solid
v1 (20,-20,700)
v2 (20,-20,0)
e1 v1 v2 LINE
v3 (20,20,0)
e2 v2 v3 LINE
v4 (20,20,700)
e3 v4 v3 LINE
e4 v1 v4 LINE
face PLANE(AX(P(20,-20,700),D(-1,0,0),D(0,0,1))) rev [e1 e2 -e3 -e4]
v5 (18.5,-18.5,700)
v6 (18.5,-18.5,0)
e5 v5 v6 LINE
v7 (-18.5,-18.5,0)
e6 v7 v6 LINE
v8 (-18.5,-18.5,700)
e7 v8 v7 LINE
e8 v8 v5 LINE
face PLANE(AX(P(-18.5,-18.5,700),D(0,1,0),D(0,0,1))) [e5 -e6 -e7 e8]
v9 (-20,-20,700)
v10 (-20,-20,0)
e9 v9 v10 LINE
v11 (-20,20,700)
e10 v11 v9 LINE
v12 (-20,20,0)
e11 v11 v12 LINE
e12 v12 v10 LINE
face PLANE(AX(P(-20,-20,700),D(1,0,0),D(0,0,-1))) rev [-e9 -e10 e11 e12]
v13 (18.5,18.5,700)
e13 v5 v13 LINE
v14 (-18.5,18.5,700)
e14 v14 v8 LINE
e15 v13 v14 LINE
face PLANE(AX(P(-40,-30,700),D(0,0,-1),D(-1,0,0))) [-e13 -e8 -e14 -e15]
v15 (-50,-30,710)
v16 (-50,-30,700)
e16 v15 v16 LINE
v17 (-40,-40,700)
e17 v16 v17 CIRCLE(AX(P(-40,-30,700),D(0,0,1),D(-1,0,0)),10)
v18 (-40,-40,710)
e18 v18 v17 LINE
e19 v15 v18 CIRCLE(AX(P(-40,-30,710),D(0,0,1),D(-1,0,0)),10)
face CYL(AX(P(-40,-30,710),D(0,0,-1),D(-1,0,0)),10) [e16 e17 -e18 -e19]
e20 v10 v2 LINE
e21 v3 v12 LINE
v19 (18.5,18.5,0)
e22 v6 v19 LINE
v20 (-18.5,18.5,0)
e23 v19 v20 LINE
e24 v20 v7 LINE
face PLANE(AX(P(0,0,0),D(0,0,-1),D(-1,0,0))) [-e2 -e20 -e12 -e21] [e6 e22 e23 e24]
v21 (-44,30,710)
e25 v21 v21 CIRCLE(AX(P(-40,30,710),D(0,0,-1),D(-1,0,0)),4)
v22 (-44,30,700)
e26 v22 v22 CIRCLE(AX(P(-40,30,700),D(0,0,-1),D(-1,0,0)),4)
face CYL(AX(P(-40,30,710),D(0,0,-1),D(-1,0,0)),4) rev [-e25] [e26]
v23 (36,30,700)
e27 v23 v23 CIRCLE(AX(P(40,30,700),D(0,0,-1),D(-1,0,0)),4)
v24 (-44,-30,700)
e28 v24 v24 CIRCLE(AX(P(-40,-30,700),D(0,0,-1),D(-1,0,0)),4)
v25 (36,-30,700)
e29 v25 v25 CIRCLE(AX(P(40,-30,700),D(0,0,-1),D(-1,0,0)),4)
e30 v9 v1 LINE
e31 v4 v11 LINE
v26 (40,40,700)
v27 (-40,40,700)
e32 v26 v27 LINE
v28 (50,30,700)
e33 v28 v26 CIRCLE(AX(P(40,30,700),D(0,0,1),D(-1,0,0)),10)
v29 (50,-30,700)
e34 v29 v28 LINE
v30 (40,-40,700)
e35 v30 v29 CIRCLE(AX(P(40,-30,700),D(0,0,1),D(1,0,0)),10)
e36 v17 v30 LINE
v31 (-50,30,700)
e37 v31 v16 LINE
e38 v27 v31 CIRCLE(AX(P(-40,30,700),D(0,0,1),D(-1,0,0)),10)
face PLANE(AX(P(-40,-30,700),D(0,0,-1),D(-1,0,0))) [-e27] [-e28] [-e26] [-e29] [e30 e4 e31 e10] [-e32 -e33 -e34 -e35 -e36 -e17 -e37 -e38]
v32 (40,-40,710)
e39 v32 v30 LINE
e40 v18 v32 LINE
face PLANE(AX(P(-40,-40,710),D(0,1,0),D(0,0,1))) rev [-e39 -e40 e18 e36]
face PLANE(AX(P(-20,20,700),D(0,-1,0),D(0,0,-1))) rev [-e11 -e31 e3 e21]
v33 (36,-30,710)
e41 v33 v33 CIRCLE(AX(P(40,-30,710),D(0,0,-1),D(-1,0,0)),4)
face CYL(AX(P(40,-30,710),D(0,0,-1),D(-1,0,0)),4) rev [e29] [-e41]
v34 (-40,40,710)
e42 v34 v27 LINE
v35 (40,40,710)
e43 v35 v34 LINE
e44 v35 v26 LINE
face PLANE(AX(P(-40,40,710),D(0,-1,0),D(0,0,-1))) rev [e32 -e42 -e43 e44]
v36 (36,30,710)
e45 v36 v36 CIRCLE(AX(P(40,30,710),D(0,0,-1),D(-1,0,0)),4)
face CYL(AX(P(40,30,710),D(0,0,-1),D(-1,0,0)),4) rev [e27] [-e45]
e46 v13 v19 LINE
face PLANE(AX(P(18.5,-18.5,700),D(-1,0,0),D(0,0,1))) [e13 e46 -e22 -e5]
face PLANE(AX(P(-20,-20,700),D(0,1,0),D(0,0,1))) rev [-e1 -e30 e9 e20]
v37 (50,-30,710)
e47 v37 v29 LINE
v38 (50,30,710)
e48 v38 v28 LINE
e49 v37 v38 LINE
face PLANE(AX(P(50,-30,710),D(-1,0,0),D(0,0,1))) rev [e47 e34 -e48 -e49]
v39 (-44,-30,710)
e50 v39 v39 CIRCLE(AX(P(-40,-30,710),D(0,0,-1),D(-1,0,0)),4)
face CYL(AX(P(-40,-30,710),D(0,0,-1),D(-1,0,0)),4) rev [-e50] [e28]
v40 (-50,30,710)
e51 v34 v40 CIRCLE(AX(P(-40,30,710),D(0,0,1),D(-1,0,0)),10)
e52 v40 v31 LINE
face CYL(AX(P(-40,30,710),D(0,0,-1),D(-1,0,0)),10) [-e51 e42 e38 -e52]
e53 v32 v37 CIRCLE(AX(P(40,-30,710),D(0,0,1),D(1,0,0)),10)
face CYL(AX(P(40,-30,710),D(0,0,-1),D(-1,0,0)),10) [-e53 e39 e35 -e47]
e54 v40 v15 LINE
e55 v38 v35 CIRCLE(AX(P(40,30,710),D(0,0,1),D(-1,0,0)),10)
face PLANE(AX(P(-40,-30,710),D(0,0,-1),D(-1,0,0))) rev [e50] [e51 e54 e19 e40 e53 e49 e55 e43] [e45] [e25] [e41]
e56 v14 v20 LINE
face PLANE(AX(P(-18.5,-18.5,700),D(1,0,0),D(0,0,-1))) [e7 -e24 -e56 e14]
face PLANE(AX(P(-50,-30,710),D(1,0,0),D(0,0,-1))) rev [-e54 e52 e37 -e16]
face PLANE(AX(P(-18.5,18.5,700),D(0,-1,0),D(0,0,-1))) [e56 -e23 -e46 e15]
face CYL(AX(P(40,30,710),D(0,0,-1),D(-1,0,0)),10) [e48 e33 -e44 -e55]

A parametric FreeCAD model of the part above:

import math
import FreeCAD as App
import Part
import Sketcher

V = App.Vector


def add_polygon(sketch, points):
    """Adds a closed chain of lines whose ends are joined by coincident constraints."""
    first, n = sketch.GeometryCount, len(points)
    for a, b in zip(points, points[1:] + points[:1]):
        sketch.addGeometry(Part.LineSegment(App.Vector(*a, 0), App.Vector(*b, 0)), False)
    for i in range(n):
        sketch.addConstraint(Sketcher.Constraint("Coincident", first + i, 2, first + (i + 1) % n, 1))

doc = App.newDocument("Part")
body = doc.addObject("PartDesign::Body", "Body")

# Sketch on XY plane
sketch1 = body.newObject("Sketcher::SketchObject", "Sketch")
sketch1.AttachmentSupport = (doc.getObject("XY_Plane"), [""])
sketch1.MapMode = "FlatFace"
add_polygon(sketch1, [(-20, 20), (-20, -20), (20, -20), (20, 20)])  # lines 0-3
add_polygon(sketch1, [(18, -18), (-18, -18), (-18, 18), (18, 18)])  # lines 4-7
sketch1.addConstraint([
    Sketcher.Constraint("Vertical", 0),
    Sketcher.Constraint("Horizontal", 1),
    Sketcher.Constraint("Vertical", 2),
    Sketcher.Constraint("Horizontal", 3),
    Sketcher.Constraint("Horizontal", 4),
    Sketcher.Constraint("Vertical", 5),
    Sketcher.Constraint("Horizontal", 6),
    Sketcher.Constraint("Vertical", 7),
    Sketcher.Constraint("Symmetric", 0, 2, 2, 2, -1, 1),
    Sketcher.Constraint("Symmetric", 4, 2, 6, 2, -1, 1),
    Sketcher.Constraint("Equal", 3, 0),
    Sketcher.Constraint("Equal", 6, 5),
    Sketcher.Constraint("DistanceX", 1, 1, 1, 2, 40.0),
    Sketcher.Constraint("DistanceX", 4, 2, 4, 1, 37.0),
])
pad1 = body.newObject("PartDesign::Pad", "Pad")
pad1.Profile = sketch1
pad1.Length = 700

# Sketch on XY plane
sketch2 = body.newObject("Sketcher::SketchObject", "Sketch001")
sketch2.AttachmentSupport = (doc.getObject("XY_Plane"), [""])
sketch2.MapMode = "FlatFace"
sketch2.AttachmentOffset = App.Placement(V(0, 0, 700), App.Rotation())
sketch2.addGeometry([
    Part.LineSegment(V(-40, -40, 0), V(40, -40, 0)),  # 0
    Part.ArcOfCircle(Part.Circle(V(40, -30, 0), V(0, 0, 1), 10), math.radians(-90), math.radians(0)),  # 1
    Part.LineSegment(V(50, -30, 0), V(50, 30, 0)),  # 2
    Part.ArcOfCircle(Part.Circle(V(40, 30, 0), V(0, 0, 1), 10), math.radians(0), math.radians(90)),  # 3
    Part.LineSegment(V(40, 40, 0), V(-40, 40, 0)),  # 4
    Part.ArcOfCircle(Part.Circle(V(-40, 30, 0), V(0, 0, 1), 10), math.radians(90), math.radians(180)),  # 5
    Part.LineSegment(V(-50, 30, 0), V(-50, -30, 0)),  # 6
    Part.ArcOfCircle(Part.Circle(V(-40, -30, 0), V(0, 0, 1), 10), math.radians(180), math.radians(270)),  # 7
], False)
sketch2.addConstraint([
    Sketcher.Constraint("Tangent", 0, 2, 1, 1),
    Sketcher.Constraint("Tangent", 1, 2, 2, 1),
    Sketcher.Constraint("Tangent", 2, 2, 3, 1),
    Sketcher.Constraint("Tangent", 3, 2, 4, 1),
    Sketcher.Constraint("Tangent", 4, 2, 5, 1),
    Sketcher.Constraint("Tangent", 5, 2, 6, 1),
    Sketcher.Constraint("Tangent", 6, 2, 7, 1),
    Sketcher.Constraint("Tangent", 7, 2, 0, 1),
    Sketcher.Constraint("Horizontal", 0),
    Sketcher.Constraint("Vertical", 2),
    Sketcher.Constraint("Horizontal", 4),
    Sketcher.Constraint("Vertical", 6),
    Sketcher.Constraint("Equal", 1, 3),
    Sketcher.Constraint("Equal", 3, 5),
    Sketcher.Constraint("Equal", 5, 7),
    Sketcher.Constraint("Symmetric", 1, 3, 5, 3, -1, 1),
    Sketcher.Constraint("Radius", 1, 10.0),
    Sketcher.Constraint("DistanceX", 0, 1, 0, 2, 80.0),
    Sketcher.Constraint("DistanceY", 2, 1, 2, 2, 60.0),
])
pad2 = body.newObject("PartDesign::Pad", "Pad001")
pad2.Profile = sketch2
pad2.Length = 10

# Sketch on XY plane
sketch3 = body.newObject("Sketcher::SketchObject", "Sketch002")
sketch3.AttachmentSupport = (doc.getObject("XY_Plane"), [""])
sketch3.MapMode = "FlatFace"
sketch3.AttachmentOffset = App.Placement(V(0, 0, 700), App.Rotation())
sketch3.addGeometry([
    Part.Circle(V(-40, 30, 0), V(0, 0, 1), 4),
    Part.Circle(V(40, 30, 0), V(0, 0, 1), 4),
    Part.Circle(V(40, -30, 0), V(0, 0, 1), 4),
    Part.Circle(V(-40, -30, 0), V(0, 0, 1), 4),
], False)
sketch3.addConstraint([
    Sketcher.Constraint("Equal", 0, 1),
    Sketcher.Constraint("Equal", 1, 2),
    Sketcher.Constraint("Equal", 2, 3),
    Sketcher.Constraint("Symmetric", 0, 3, 2, 3, -1, 1),
    Sketcher.Constraint("Symmetric", 1, 3, 3, 3, -1, 1),
    Sketcher.Constraint("Symmetric", 0, 3, 1, 3, -2),
    Sketcher.Constraint("Diameter", 0, 8.0),
    Sketcher.Constraint("DistanceX", 0, 3, -1, 1, 40.0),
    Sketcher.Constraint("DistanceY", -1, 1, 0, 3, 30.0),
])
pocket1 = body.newObject("PartDesign::Pocket", "Pocket")
pocket1.Profile = sketch3
pocket1.Length = 10
pocket1.Reversed = True

doc.recompute()
